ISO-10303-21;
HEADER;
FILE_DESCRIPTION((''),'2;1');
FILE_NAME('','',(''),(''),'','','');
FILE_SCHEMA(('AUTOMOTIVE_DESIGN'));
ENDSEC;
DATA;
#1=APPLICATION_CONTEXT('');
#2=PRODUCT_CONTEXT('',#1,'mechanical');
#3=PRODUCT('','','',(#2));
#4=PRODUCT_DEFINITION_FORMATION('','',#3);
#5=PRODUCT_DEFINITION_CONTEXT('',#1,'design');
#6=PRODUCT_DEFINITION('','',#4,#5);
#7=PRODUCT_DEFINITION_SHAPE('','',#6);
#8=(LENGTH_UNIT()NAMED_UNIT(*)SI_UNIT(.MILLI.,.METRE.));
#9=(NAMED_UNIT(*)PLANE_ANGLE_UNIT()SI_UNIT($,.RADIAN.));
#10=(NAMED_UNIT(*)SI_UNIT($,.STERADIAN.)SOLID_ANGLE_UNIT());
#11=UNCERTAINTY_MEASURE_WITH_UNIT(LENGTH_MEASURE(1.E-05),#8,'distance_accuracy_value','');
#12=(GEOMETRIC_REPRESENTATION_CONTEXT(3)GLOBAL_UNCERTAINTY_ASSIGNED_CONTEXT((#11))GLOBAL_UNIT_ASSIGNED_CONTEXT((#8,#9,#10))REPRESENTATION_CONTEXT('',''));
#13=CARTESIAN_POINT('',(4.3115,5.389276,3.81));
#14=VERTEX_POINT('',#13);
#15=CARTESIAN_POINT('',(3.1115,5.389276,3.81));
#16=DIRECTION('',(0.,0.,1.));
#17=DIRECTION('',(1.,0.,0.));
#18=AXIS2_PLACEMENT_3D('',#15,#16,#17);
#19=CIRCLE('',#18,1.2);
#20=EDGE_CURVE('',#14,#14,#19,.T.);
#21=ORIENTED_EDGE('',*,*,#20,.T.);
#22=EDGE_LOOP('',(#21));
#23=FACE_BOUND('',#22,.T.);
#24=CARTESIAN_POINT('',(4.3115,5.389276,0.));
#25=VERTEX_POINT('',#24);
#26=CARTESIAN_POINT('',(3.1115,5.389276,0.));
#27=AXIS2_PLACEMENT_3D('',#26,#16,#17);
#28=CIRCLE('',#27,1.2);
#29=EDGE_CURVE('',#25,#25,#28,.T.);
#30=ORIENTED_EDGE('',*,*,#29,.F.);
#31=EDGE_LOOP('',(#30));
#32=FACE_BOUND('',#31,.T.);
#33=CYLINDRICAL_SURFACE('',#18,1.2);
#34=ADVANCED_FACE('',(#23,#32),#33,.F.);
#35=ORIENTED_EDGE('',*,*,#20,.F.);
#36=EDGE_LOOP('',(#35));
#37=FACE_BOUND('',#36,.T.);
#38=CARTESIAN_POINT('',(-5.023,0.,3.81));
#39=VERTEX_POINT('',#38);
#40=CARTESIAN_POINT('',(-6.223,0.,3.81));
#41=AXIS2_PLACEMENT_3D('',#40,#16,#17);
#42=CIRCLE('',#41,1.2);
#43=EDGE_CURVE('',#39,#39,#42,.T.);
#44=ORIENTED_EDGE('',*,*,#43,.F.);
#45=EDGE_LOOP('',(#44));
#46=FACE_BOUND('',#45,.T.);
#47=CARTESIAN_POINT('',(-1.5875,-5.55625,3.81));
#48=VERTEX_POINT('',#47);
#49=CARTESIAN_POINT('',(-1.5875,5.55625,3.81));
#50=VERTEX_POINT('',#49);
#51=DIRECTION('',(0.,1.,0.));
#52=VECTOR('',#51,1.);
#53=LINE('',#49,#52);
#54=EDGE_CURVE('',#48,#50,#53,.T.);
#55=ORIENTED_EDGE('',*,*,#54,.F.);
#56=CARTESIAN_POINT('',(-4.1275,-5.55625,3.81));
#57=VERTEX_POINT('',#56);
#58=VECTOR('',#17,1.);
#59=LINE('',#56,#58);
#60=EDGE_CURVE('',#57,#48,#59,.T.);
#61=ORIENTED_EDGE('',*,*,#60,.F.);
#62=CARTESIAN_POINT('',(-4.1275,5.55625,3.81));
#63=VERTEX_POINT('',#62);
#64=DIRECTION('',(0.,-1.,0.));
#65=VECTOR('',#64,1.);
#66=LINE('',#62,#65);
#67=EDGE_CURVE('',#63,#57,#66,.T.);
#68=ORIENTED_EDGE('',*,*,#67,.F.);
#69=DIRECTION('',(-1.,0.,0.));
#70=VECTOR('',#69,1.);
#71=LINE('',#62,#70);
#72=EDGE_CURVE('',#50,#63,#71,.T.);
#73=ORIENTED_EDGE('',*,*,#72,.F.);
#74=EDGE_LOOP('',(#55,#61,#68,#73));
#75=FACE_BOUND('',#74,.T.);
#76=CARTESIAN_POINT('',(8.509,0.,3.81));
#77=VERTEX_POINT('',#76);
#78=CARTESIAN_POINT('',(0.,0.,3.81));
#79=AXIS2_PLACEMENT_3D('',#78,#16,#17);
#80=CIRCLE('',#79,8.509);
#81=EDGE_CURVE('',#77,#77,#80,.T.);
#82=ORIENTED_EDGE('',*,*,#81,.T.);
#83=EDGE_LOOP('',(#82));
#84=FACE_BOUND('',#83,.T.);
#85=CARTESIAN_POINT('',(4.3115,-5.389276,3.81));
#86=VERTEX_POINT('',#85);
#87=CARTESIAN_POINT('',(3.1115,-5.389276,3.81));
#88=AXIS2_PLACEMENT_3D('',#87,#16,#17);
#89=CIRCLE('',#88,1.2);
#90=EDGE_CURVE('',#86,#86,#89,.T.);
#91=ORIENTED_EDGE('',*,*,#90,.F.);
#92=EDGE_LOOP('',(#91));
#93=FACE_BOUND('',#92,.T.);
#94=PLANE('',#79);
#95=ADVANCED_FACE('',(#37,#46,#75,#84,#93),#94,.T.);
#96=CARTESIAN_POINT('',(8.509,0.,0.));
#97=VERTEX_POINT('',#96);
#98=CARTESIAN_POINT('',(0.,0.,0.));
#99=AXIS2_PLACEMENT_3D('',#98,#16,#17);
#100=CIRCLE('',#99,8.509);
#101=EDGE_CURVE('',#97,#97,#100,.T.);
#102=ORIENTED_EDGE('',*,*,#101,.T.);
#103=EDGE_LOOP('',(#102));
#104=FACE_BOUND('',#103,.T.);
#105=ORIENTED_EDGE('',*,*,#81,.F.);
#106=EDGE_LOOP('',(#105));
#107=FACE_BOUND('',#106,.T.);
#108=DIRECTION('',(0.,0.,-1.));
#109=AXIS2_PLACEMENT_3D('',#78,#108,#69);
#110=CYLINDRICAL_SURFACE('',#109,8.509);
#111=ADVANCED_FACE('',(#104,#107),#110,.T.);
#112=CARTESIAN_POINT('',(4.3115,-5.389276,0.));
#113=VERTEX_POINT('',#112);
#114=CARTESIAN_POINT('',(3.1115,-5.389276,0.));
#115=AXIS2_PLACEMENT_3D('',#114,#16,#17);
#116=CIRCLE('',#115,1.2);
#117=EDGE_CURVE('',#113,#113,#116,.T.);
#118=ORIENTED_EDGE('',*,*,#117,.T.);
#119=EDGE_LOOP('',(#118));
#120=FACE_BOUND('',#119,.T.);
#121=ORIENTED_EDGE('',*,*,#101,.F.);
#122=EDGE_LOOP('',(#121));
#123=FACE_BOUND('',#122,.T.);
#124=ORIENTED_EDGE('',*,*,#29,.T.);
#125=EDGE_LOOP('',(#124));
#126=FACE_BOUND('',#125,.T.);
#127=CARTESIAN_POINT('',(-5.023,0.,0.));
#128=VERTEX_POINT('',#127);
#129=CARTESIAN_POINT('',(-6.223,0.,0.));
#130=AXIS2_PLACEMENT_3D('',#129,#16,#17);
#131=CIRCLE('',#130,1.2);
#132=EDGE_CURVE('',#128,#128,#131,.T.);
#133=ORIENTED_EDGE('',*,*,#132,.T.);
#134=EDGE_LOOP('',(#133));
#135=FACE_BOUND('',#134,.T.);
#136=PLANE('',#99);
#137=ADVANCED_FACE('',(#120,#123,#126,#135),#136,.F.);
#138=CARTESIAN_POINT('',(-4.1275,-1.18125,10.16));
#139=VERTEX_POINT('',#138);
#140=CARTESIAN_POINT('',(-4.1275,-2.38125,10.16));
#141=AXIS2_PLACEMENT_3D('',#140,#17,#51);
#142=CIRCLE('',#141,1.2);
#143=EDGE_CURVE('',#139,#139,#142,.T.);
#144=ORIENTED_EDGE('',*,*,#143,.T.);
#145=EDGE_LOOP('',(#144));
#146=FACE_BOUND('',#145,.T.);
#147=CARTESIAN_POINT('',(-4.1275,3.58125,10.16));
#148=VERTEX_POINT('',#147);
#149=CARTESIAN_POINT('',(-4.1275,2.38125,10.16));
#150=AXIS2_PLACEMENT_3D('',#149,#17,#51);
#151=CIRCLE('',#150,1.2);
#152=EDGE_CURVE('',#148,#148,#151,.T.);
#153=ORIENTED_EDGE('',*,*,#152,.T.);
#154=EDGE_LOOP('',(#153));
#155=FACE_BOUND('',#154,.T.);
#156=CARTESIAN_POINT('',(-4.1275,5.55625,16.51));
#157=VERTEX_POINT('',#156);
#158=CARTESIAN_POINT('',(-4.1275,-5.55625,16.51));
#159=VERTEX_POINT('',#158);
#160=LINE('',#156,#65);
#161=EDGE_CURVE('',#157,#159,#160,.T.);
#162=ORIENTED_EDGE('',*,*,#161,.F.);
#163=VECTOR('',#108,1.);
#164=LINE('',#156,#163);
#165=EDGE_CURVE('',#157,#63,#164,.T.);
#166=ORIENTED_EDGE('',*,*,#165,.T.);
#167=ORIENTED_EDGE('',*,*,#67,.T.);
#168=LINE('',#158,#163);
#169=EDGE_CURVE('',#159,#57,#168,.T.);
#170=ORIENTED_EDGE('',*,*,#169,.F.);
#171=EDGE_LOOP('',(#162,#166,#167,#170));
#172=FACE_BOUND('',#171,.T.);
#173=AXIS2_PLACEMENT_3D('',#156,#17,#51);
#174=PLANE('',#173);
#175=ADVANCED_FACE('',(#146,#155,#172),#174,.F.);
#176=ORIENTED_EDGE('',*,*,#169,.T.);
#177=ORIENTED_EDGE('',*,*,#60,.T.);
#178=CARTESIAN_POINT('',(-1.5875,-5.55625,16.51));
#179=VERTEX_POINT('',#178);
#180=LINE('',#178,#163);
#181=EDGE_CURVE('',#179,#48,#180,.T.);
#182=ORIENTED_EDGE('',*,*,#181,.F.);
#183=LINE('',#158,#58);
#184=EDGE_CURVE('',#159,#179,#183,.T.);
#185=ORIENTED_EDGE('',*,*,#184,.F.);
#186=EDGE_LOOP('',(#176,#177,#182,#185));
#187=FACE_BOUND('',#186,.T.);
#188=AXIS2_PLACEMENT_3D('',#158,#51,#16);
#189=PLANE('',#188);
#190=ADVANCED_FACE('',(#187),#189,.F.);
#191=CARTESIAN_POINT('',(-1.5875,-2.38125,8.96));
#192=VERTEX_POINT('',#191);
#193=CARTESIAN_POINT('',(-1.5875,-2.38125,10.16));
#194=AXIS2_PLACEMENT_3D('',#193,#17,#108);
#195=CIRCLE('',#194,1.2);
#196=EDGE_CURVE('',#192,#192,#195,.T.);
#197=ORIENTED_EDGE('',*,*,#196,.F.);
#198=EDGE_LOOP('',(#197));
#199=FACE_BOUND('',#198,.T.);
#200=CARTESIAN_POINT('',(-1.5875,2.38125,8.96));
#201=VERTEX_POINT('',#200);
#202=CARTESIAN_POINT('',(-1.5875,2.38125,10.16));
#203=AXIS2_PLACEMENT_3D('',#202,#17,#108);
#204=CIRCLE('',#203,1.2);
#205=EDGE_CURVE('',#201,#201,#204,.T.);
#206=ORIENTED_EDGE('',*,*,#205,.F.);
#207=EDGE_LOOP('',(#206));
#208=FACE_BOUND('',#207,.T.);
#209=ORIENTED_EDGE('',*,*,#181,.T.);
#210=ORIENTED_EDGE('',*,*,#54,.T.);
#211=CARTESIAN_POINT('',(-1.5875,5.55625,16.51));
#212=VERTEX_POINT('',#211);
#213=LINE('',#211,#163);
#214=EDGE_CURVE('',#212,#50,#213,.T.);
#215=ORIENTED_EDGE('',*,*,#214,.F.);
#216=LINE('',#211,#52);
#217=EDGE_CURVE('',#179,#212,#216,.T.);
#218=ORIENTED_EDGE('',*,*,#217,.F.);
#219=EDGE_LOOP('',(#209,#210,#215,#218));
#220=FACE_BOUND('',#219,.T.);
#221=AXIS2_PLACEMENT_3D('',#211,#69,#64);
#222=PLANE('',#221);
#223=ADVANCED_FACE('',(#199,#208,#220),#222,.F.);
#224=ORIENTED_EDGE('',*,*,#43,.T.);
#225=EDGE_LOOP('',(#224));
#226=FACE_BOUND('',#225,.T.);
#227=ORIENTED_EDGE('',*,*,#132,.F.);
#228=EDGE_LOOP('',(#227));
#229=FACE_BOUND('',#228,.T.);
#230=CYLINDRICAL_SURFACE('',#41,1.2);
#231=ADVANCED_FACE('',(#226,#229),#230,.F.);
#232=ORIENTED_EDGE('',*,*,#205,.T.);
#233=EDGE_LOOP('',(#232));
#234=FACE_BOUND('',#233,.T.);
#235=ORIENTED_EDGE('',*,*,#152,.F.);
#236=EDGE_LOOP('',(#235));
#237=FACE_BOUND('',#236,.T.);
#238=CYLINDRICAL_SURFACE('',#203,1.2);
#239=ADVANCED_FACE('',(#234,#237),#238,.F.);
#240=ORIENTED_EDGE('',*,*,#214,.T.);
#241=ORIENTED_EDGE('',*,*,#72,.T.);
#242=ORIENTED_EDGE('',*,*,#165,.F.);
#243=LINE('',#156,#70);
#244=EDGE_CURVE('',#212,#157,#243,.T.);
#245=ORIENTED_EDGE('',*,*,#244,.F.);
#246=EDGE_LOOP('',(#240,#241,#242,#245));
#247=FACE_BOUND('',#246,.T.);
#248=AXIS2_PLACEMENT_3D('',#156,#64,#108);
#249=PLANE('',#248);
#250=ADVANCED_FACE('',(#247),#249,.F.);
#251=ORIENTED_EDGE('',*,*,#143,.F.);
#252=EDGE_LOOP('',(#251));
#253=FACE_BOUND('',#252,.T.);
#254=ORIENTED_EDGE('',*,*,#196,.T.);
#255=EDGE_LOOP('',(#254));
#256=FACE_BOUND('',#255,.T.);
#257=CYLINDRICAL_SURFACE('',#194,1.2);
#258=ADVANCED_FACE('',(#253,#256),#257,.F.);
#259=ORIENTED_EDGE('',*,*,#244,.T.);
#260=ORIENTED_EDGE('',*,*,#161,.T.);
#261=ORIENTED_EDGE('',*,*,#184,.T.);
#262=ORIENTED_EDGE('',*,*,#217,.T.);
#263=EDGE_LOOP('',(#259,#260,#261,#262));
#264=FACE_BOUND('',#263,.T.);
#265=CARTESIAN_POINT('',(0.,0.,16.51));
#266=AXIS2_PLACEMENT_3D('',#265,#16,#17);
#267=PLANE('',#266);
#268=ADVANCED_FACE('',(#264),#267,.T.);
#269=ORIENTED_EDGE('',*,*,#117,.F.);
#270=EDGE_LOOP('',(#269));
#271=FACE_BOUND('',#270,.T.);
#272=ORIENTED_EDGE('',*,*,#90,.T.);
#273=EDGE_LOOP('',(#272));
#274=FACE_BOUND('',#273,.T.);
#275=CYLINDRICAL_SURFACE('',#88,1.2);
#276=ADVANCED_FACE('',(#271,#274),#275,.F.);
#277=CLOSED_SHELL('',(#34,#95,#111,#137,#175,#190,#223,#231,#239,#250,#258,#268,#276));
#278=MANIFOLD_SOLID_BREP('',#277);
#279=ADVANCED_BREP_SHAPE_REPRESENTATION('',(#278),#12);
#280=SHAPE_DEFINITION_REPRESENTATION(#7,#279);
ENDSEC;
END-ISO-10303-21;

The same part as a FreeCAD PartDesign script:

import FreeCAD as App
import Part
import Sketcher
from FreeCAD import Vector
Q = App.Units.Quantity


def add_polygon(sketch, points):
    """Adds a closed chain of lines whose ends are joined by coincident constraints."""
    first, n = sketch.GeometryCount, len(points)
    for a, b in zip(points, points[1:] + points[:1]):
        sketch.addGeometry(Part.LineSegment(App.Vector(*a, 0), App.Vector(*b, 0)), False)
    for i in range(n):
        sketch.addConstraint(Sketcher.Constraint("Coincident", first + i, 2, first + (i + 1) % n, 1))

doc = App.newDocument("Part")
body = doc.addObject("PartDesign::Body", "Body")

# Sketch on XY plane
sketch1 = body.newObject("Sketcher::SketchObject", "Sketch")
sketch1.AttachmentSupport = (doc.getObject("XY_Plane"), [""])
sketch1.MapMode = "FlatFace"
sketch1.addGeometry(Part.Circle(Vector(0, 0, 0), Vector(0, 0, 1), 8.509), False)
sketch1.addConstraint(Sketcher.Constraint("Coincident", 0, 3, -1, 1))
sketch1.addConstraint(Sketcher.Constraint("Diameter", 0, Q("0.67 in")))
pad1 = body.newObject("PartDesign::Pad", "Pad")
pad1.Profile = sketch1
pad1.Length = Q("0.15 in")

# Sketch on XY plane
sketch2 = body.newObject("Sketcher::SketchObject", "Sketch001")
sketch2.AttachmentSupport = (doc.getObject("XY_Plane"), [""])
sketch2.MapMode = "FlatFace"
sketch2.AttachmentOffset = App.Placement(Vector(0, 0, 0.15 * 25.4), App.Rotation())
add_polygon(sketch2, [(-4.1275, 5.55625), (-4.1275, -5.55625), (-1.5875, -5.55625), (-1.5875, 5.55625)])  # lines 0-3
sketch2.addConstraint(Sketcher.Constraint("Vertical", 0))
sketch2.addConstraint(Sketcher.Constraint("Horizontal", 1))
sketch2.addConstraint(Sketcher.Constraint("Vertical", 2))
sketch2.addConstraint(Sketcher.Constraint("Horizontal", 3))
sketch2.addConstraint(Sketcher.Constraint("DistanceX", 1, 1, 1, 2, Q("0.1 in")))
sketch2.addConstraint(Sketcher.Constraint("DistanceY", 0, 2, 0, 1, Q("0.4375 in")))
sketch2.addConstraint(Sketcher.Constraint("DistanceY", 0, 2, -1, 1, Q("0.21875 in")))
sketch2.addConstraint(Sketcher.Constraint("DistanceX", 1, 2, -1, 1, Q("0.0625 in")))
pad2 = body.newObject("PartDesign::Pad", "Pad001")
pad2.Profile = sketch2
pad2.Length = Q("0.5 in")

# Sketch on XY plane
sketch3 = body.newObject("Sketcher::SketchObject", "Sketch002")
sketch3.AttachmentSupport = (doc.getObject("XY_Plane"), [""])
sketch3.MapMode = "FlatFace"
sketch3.AttachmentOffset = App.Placement(Vector(0, 0, 0.15 * 25.4), App.Rotation())
sketch3.addGeometry(Part.Circle(Vector(-6.223, 0, 0), Vector(0, 0, 1), 1.2), False)
sketch3.addGeometry(Part.Circle(Vector(3.1115, 5.389276, 0), Vector(0, 0, 1), 1.2), False)
sketch3.addGeometry(Part.Circle(Vector(3.1115, -5.389276, 0), Vector(0, 0, 1), 1.2), False)
sketch3.addConstraint(Sketcher.Constraint("Equal", 0, 1))
sketch3.addConstraint(Sketcher.Constraint("Equal", 1, 2))
sketch3.addConstraint(Sketcher.Constraint("Symmetric", 1, 3, 2, 3, -1))
sketch3.addConstraint(Sketcher.Constraint("PointOnObject", 0, 3, -1))
sketch3.addConstraint(Sketcher.Constraint("Diameter", 0, 2.4))
sketch3.addConstraint(Sketcher.Constraint("DistanceX", 0, 3, -1, 1, Q("0.245 in")))
sketch3.addConstraint(Sketcher.Constraint("DistanceX", -1, 1, 1, 3, Q("0.1225 in")))
sketch3.addConstraint(Sketcher.Constraint("DistanceY", -1, 1, 1, 3, 5.389276))
doc.recompute()
hole = body.newObject("PartDesign::Hole", "Hole")
hole.Profile = sketch3
hole.ThreadType = "None"
hole.Diameter = 2.4
hole.DepthType = "ThroughAll"

# Sketch on YZ plane
sketch4 = body.newObject("Sketcher::SketchObject", "Sketch003")
sketch4.AttachmentSupport = (doc.getObject("YZ_Plane"), [""])
sketch4.MapMode = "FlatFace"
sketch4.AttachmentOffset = App.Placement(Vector(0, 0, -0.0625 * 25.4), App.Rotation())
sketch4.addGeometry(Part.Circle(Vector(-2.38125, 10.16, 0), Vector(0, 0, 1), 1.2), False)
sketch4.addGeometry(Part.Circle(Vector(2.38125, 10.16, 0), Vector(0, 0, 1), 1.2), False)
sketch4.addConstraint(Sketcher.Constraint("Equal", 0, 1))
sketch4.addConstraint(Sketcher.Constraint("Symmetric", 0, 3, 1, 3, -2))
sketch4.addConstraint(Sketcher.Constraint("DistanceY", -1, 1, 0, 3, Q("0.4 in")))
sketch4.addConstraint(Sketcher.Constraint("Diameter", 0, 2.4))
sketch4.addConstraint(Sketcher.Constraint("DistanceX", 0, 3, -1, 1, Q("0.09375 in")))
doc.recompute()
hole2 = body.newObject("PartDesign::Hole", "Hole001")
hole2.Profile = sketch4
hole2.ThreadType = "None"
hole2.Diameter = 2.4
hole2.DepthType = "ThroughAll"

doc.recompute()
